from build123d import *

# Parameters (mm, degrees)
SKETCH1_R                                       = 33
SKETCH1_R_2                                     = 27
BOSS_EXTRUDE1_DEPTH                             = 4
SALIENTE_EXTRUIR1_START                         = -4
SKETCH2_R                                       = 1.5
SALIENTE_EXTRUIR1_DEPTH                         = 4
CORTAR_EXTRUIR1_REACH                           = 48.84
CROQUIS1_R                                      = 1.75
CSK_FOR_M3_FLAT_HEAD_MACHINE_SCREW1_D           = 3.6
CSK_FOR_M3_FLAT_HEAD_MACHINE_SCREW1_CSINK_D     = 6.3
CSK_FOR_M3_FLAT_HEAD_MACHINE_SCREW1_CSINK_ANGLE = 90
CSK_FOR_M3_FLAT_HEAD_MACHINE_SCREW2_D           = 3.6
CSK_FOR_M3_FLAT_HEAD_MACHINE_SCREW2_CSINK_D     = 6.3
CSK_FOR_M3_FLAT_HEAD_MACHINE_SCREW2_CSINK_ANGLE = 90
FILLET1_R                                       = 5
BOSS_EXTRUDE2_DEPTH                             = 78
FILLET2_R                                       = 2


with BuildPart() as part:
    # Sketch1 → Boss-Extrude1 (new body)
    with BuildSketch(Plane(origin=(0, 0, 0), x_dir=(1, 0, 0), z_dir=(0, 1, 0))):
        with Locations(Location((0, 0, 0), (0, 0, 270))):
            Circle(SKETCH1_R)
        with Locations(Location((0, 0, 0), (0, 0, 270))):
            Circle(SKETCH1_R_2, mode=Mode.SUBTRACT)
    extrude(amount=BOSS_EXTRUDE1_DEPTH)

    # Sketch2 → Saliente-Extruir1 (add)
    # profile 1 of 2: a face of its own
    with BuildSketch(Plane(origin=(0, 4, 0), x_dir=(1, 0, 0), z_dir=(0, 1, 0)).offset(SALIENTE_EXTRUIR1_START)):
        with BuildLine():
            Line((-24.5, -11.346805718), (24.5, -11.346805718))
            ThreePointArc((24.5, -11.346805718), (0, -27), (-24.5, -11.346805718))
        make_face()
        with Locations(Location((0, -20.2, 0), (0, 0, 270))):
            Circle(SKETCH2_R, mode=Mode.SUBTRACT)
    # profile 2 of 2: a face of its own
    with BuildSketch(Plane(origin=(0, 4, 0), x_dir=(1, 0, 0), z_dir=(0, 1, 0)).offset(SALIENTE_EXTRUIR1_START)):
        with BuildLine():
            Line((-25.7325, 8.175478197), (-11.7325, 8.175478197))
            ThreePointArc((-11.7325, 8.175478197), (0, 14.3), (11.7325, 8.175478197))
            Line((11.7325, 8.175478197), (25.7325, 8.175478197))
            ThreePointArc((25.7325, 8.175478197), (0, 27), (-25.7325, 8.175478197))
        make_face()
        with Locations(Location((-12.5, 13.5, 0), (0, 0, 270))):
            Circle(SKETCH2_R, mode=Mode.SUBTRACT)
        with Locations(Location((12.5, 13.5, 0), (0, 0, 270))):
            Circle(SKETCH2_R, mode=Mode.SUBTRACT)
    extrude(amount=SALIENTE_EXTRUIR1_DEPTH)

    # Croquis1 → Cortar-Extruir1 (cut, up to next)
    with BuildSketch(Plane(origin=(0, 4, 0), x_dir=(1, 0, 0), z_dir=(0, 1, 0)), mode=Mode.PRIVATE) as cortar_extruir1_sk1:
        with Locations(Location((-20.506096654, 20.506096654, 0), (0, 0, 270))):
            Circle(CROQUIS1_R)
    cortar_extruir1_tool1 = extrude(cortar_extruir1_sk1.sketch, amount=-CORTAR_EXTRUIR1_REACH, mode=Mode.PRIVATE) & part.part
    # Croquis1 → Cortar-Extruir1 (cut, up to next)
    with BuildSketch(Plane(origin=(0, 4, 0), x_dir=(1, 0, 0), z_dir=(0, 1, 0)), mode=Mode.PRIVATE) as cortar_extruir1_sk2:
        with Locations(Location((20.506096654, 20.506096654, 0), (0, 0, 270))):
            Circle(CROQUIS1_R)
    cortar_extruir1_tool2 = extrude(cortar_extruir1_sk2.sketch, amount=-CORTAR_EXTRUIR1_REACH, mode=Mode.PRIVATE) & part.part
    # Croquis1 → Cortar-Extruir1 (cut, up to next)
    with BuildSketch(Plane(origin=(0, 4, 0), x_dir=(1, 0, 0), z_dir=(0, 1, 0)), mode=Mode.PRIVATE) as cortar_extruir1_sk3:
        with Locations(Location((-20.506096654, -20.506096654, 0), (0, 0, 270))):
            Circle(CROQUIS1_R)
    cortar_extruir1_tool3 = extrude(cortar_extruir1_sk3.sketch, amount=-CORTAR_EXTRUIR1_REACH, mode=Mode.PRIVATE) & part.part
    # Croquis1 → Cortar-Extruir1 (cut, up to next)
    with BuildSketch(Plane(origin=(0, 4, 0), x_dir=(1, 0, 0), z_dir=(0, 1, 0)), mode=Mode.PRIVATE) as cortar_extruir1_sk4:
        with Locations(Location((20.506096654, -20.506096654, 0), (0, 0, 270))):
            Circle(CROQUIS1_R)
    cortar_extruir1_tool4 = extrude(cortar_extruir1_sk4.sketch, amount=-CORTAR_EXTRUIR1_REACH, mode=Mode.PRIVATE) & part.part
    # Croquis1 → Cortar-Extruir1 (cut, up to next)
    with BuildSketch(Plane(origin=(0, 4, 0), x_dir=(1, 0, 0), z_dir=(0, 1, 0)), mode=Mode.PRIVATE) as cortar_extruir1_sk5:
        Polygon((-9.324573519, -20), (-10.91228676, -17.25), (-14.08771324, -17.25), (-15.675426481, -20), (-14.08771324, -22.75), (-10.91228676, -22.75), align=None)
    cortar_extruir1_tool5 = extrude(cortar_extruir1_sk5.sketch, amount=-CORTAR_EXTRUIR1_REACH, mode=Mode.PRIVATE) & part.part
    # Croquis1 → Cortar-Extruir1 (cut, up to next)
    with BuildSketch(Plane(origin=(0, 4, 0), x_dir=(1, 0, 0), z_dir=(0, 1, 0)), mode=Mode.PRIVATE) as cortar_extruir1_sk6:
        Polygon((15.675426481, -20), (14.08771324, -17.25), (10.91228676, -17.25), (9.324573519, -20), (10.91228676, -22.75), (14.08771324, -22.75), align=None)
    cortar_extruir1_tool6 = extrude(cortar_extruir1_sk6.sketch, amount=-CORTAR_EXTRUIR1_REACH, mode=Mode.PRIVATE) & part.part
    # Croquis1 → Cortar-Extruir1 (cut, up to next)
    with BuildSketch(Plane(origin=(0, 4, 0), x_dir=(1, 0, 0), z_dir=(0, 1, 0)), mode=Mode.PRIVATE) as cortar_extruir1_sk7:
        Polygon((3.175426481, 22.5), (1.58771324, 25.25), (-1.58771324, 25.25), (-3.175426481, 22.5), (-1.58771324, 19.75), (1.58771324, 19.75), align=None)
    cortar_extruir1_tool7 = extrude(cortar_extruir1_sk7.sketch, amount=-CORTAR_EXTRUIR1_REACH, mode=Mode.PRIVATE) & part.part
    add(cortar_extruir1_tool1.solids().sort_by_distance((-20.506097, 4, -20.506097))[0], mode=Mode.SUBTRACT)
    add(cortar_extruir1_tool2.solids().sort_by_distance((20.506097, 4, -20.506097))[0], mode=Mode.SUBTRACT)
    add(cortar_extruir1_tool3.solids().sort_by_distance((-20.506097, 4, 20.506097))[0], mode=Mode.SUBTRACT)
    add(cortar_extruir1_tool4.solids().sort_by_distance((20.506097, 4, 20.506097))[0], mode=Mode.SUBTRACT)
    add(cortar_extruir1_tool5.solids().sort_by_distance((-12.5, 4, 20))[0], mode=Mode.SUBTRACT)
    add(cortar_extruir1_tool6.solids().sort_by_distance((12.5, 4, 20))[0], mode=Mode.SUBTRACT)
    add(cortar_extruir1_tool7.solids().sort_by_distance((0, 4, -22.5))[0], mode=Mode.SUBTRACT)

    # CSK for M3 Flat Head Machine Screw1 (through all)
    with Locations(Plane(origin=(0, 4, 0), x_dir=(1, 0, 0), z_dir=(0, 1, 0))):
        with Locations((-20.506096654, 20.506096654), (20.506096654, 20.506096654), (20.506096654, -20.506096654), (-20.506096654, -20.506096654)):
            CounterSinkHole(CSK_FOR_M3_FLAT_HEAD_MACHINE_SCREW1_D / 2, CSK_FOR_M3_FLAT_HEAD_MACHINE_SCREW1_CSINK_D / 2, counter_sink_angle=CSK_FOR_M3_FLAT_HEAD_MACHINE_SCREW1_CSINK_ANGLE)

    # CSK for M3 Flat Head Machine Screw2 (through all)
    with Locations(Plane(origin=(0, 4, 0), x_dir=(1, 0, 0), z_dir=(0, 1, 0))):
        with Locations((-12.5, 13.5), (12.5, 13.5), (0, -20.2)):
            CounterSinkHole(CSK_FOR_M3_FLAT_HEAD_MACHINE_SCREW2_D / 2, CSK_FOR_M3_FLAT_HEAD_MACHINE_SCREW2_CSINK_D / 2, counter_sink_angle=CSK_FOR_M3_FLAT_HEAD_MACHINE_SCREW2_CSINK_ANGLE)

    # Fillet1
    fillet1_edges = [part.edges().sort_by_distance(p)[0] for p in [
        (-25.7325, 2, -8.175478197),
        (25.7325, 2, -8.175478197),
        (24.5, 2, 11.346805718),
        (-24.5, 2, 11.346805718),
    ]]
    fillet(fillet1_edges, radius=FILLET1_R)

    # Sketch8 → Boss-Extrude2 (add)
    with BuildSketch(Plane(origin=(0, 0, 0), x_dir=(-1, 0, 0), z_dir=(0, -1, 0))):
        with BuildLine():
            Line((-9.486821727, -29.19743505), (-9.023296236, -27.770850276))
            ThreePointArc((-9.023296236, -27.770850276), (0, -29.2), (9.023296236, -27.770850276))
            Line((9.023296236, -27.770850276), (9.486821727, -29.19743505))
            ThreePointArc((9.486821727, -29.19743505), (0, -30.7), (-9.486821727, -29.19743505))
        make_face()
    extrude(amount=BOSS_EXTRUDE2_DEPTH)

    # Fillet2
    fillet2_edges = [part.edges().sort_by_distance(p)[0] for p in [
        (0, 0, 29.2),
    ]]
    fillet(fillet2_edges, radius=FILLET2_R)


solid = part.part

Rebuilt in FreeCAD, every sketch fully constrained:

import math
import FreeCAD as App
import Part
import Sketcher
from FreeCAD import Vector
Q = App.Units.Quantity


def edges_at(feature, points):
    """Names of the edges that pass closest to the given points."""
    edges = feature.Shape.Edges
    near = lambda p: min(range(len(edges)), key=lambda i: edges[i].distToShape(Part.Vertex(*p))[0])
    return sorted({f"Edge{near(p) + 1}" for p in points})


def add_polygon(sketch, points):
    """Adds a closed chain of lines whose ends are joined by coincident constraints."""
    first, n = sketch.GeometryCount, len(points)
    for a, b in zip(points, points[1:] + points[:1]):
        sketch.addGeometry(Part.LineSegment(App.Vector(*a, 0), App.Vector(*b, 0)), False)
    for i in range(n):
        sketch.addConstraint(Sketcher.Constraint("Coincident", first + i, 2, first + (i + 1) % n, 1))

doc = App.newDocument("Part")
body = doc.addObject("PartDesign::Body", "Body")

# Sketch on XZ plane
sketch1 = body.newObject("Sketcher::SketchObject", "Sketch")
sketch1.AttachmentSupport = (doc.getObject("XZ_Plane"), [""])
sketch1.MapMode = "FlatFace"
sketch1.addGeometry([
    Part.Circle(Vector(0, 0, 0), Vector(0, 0, 1), 33),
    Part.Circle(Vector(0, 0, 0), Vector(0, 0, 1), 27),
], False)
sketch1.addConstraint([
    Sketcher.Constraint("Coincident", 0, 3, -1, 1),
    Sketcher.Constraint("Coincident", 1, 3, -1, 1),
    Sketcher.Constraint("Diameter", 0, 66.0),
    Sketcher.Constraint("Diameter", 1, 54.0),
])
pad1 = body.newObject("PartDesign::Pad", "Pad")
pad1.Profile = sketch1
pad1.Length = 4
pad1.Reversed = True

# Sketch on XZ plane
sketch2 = body.newObject("Sketcher::SketchObject", "Sketch001")
sketch2.AttachmentSupport = (doc.getObject("XZ_Plane"), [""])
sketch2.MapMode = "FlatFace"
sketch2.addGeometry([
    Part.LineSegment(Vector(24.5, 11.346806, 0), Vector(-24.5, 11.346806, 0)),  # 0
    Part.ArcOfCircle(Part.Circle(Vector(0, 0, 0), Vector(0, 0, 1), 27), math.radians(24.850502), math.radians(155.149498)),  # 1
    Part.Circle(Vector(0, 20.2, 0), Vector(0, 0, 1), 1.5),  # 2
    Part.LineSegment(Vector(-25.7325, -8.175478, 0), Vector(-11.7325, -8.175478, 0)),  # 3
    Part.ArcOfCircle(Part.Circle(Vector(0, 0, 0), Vector(0, 0, 1), 14.3), math.radians(-145.130321), math.radians(-34.869679)),  # 4
    Part.LineSegment(Vector(11.7325, -8.175478, 0), Vector(25.7325, -8.175478, 0)),  # 5
    Part.ArcOfCircle(Part.Circle(Vector(0, 0, 0), Vector(0, 0, 1), 27), math.radians(-162.374416), math.radians(-17.625584)),  # 6
    Part.Circle(Vector(-12.5, -13.5, 0), Vector(0, 0, 1), 1.5),  # 7
    Part.Circle(Vector(12.5, -13.5, 0), Vector(0, 0, 1), 1.5),  # 8
], False)
sketch2.addConstraint([
    Sketcher.Constraint("Coincident", 0, 1, 1, 1),
    Sketcher.Constraint("Coincident", 1, 2, 0, 2),
    Sketcher.Constraint("Coincident", 3, 2, 4, 1),
    Sketcher.Constraint("Coincident", 4, 2, 5, 1),
    Sketcher.Constraint("Coincident", 5, 2, 6, 2),
    Sketcher.Constraint("Coincident", 6, 1, 3, 1),
    Sketcher.Constraint("Horizontal", 0),
    Sketcher.Constraint("Horizontal", 3),
    Sketcher.Constraint("Horizontal", 5),
    Sketcher.Constraint("Coincident", 1, 3, -1, 1),
    Sketcher.Constraint("Coincident", 4, 3, -1, 1),
    Sketcher.Constraint("Coincident", 6, 3, -1, 1),
    Sketcher.Constraint("Equal", 1, 6),
    Sketcher.Constraint("Equal", 2, 7),
    Sketcher.Constraint("Equal", 7, 8),
    Sketcher.Constraint("Symmetric", 7, 3, 8, 3, -2),
    Sketcher.Constraint("PointOnObject", 2, 3, -2),
    Sketcher.Constraint("Horizontal", 3, 2, 4, 2),
    Sketcher.Constraint("Diameter", 2, 3.0),
    Sketcher.Constraint("Radius", 1, 27.0),
    Sketcher.Constraint("Radius", 4, 14.3),
    Sketcher.Constraint("DistanceX", 0, 2, 0, 1, 49.0),
    Sketcher.Constraint("DistanceX", 3, 1, 3, 2, 14.0),
    Sketcher.Constraint("DistanceX", 7, 3, 8, 3, 25.0),
    Sketcher.Constraint("DistanceY", -1, 1, 2, 3, 20.2),
    Sketcher.Constraint("DistanceY", 7, 3, -1, 1, 13.5),
])
pad2 = body.newObject("PartDesign::Pad", "Pad001")
pad2.Profile = sketch2
pad2.Length = 4
pad2.Reversed = True

# Sketch on XZ plane
sketch3 = body.newObject("Sketcher::SketchObject", "Sketch002")
sketch3.AttachmentSupport = (doc.getObject("XZ_Plane"), [""])
sketch3.MapMode = "FlatFace"
sketch3.AttachmentOffset = App.Placement(Vector(0, 0, -4), App.Rotation())
sketch3.addGeometry(Part.Circle(Vector(-20.506097, -20.506097, 0), Vector(0, 0, 1), 1.75), False)
sketch3.addConstraint([
    Sketcher.Constraint("Diameter", 0, 3.5),
    Sketcher.Constraint("DistanceX", 0, 3, -1, 1, 20.506097),
    Sketcher.Constraint("DistanceY", 0, 3, -1, 1, 20.506097),
])
pocket1 = body.newObject("PartDesign::Pocket", "Pocket")
pocket1.Profile = sketch3
pocket1.Type = "UpToFirst"
pocket1.Reversed = True

# Sketch on XZ plane
sketch4 = body.newObject("Sketcher::SketchObject", "Sketch003")
sketch4.AttachmentSupport = (doc.getObject("XZ_Plane"), [""])
sketch4.MapMode = "FlatFace"
sketch4.AttachmentOffset = App.Placement(Vector(0, 0, -4), App.Rotation())
sketch4.addGeometry(Part.Circle(Vector(20.506097, -20.506097, 0), Vector(0, 0, 1), 1.75), False)
sketch4.addConstraint([
    Sketcher.Constraint("Diameter", 0, 3.5),
    Sketcher.Constraint("DistanceX", -1, 1, 0, 3, 20.506097),
    Sketcher.Constraint("DistanceY", 0, 3, -1, 1, 20.506097),
])
pocket2 = body.newObject("PartDesign::Pocket", "Pocket001")
pocket2.Profile = sketch4
pocket2.Type = "UpToFirst"
pocket2.Reversed = True

# Sketch on XZ plane
sketch5 = body.newObject("Sketcher::SketchObject", "Sketch004")
sketch5.AttachmentSupport = (doc.getObject("XZ_Plane"), [""])
sketch5.MapMode = "FlatFace"
sketch5.AttachmentOffset = App.Placement(Vector(0, 0, -4), App.Rotation())
sketch5.addGeometry(Part.Circle(Vector(-20.506097, 20.506097, 0), Vector(0, 0, 1), 1.75), False)
sketch5.addConstraint([
    Sketcher.Constraint("Diameter", 0, 3.5),
    Sketcher.Constraint("DistanceX", 0, 3, -1, 1, 20.506097),
    Sketcher.Constraint("DistanceY", -1, 1, 0, 3, 20.506097),
])
pocket3 = body.newObject("PartDesign::Pocket", "Pocket002")
pocket3.Profile = sketch5
pocket3.Type = "UpToFirst"
pocket3.Reversed = True

# Sketch on XZ plane
sketch6 = body.newObject("Sketcher::SketchObject", "Sketch005")
sketch6.AttachmentSupport = (doc.getObject("XZ_Plane"), [""])
sketch6.MapMode = "FlatFace"
sketch6.AttachmentOffset = App.Placement(Vector(0, 0, -4), App.Rotation())
sketch6.addGeometry(Part.Circle(Vector(20.506097, 20.506097, 0), Vector(0, 0, 1), 1.75), False)
sketch6.addConstraint([
    Sketcher.Constraint("Diameter", 0, 3.5),
    Sketcher.Constraint("DistanceX", -1, 1, 0, 3, 20.506097),
    Sketcher.Constraint("DistanceY", -1, 1, 0, 3, 20.506097),
])
pocket4 = body.newObject("PartDesign::Pocket", "Pocket003")
pocket4.Profile = sketch6
pocket4.Type = "UpToFirst"
pocket4.Reversed = True

# Sketch on XZ plane
sketch7 = body.newObject("Sketcher::SketchObject", "Sketch006")
sketch7.AttachmentSupport = (doc.getObject("XZ_Plane"), [""])
sketch7.MapMode = "FlatFace"
sketch7.AttachmentOffset = App.Placement(Vector(0, 0, -4), App.Rotation())
add_polygon(sketch7, [(-9.324574, 20), (-10.912287, 17.25), (-14.087713, 17.25), (-15.675426, 20), (-14.087713, 22.75), (-10.912287, 22.75)])  # lines 0-5
sketch7.addConstraint([
    Sketcher.Constraint("Horizontal", 1),
    Sketcher.Constraint("Horizontal", 4),
    Sketcher.Constraint("Parallel", 0, 3),
    Sketcher.Constraint("Parallel", 2, 5),
    Sketcher.Constraint("Horizontal", 2, 2, 5, 2),
    Sketcher.Constraint("Vertical", 1, 2, 3, 2),
    Sketcher.Constraint("Vertical", 0, 2, 4, 2),
    Sketcher.Constraint("Angle", 0, Q("-120 deg")),
    Sketcher.Constraint("DistanceY", -1, 1, 2, 2, 20.0),
    Sketcher.Constraint("DistanceY", 1, 2, 3, 2, 5.5),
    Sketcher.Constraint("DistanceX", 1, 2, 1, 1, 3.175426),
    Sketcher.Constraint("DistanceX", 0, 2, -1, 1, 10.912287),
])
pocket5 = body.newObject("PartDesign::Pocket", "Pocket004")
pocket5.Profile = sketch7
pocket5.Type = "UpToFirst"
pocket5.Reversed = True

# Sketch on XZ plane
sketch8 = body.newObject("Sketcher::SketchObject", "Sketch007")
sketch8.AttachmentSupport = (doc.getObject("XZ_Plane"), [""])
sketch8.MapMode = "FlatFace"
sketch8.AttachmentOffset = App.Placement(Vector(0, 0, -4), App.Rotation())
add_polygon(sketch8, [(15.675426, 20), (14.087713, 17.25), (10.912287, 17.25), (9.324574, 20), (10.912287, 22.75), (14.087713, 22.75)])  # lines 0-5
sketch8.addConstraint([
    Sketcher.Constraint("Horizontal", 1),
    Sketcher.Constraint("Horizontal", 4),
    Sketcher.Constraint("Parallel", 0, 3),
    Sketcher.Constraint("Parallel", 2, 5),
    Sketcher.Constraint("Horizontal", 2, 2, 5, 2),
    Sketcher.Constraint("Vertical", 1, 2, 3, 2),
    Sketcher.Constraint("Vertical", 0, 2, 4, 2),
    Sketcher.Constraint("Angle", 0, Q("-120 deg")),
    Sketcher.Constraint("DistanceY", -1, 1, 2, 2, 20.0),
    Sketcher.Constraint("DistanceY", 1, 2, 3, 2, 5.5),
    Sketcher.Constraint("DistanceX", 1, 2, 1, 1, 3.175426),
    Sketcher.Constraint("DistanceX", -1, 1, 0, 2, 14.087713),
])
pocket6 = body.newObject("PartDesign::Pocket", "Pocket005")
pocket6.Profile = sketch8
pocket6.Type = "UpToFirst"
pocket6.Reversed = True

# Sketch on XZ plane
sketch9 = body.newObject("Sketcher::SketchObject", "Sketch008")
sketch9.AttachmentSupport = (doc.getObject("XZ_Plane"), [""])
sketch9.MapMode = "FlatFace"
sketch9.AttachmentOffset = App.Placement(Vector(0, 0, -4), App.Rotation())
add_polygon(sketch9, [(3.175426, -22.5), (1.587713, -25.25), (-1.587713, -25.25), (-3.175426, -22.5), (-1.587713, -19.75), (1.587713, -19.75)])  # lines 0-5
sketch9.addConstraint([
    Sketcher.Constraint("Horizontal", 1),
    Sketcher.Constraint("Horizontal", 4),
    Sketcher.Constraint("Symmetric", 2, 2, 5, 2, -2),
    Sketcher.Constraint("Parallel", 0, 3),
    Sketcher.Constraint("Parallel", 2, 5),
    Sketcher.Constraint("Vertical", 1, 2, 3, 2),
    Sketcher.Constraint("Vertical", 0, 2, 4, 2),
    Sketcher.Constraint("Angle", 0, Q("-120 deg")),
    Sketcher.Constraint("DistanceY", 2, 2, -1, 1, 22.5),
    Sketcher.Constraint("DistanceY", 1, 2, 3, 2, 5.5),
    Sketcher.Constraint("DistanceX", 1, 2, 1, 1, 3.175426),
])
pocket7 = body.newObject("PartDesign::Pocket", "Pocket006")
pocket7.Profile = sketch9
pocket7.Type = "UpToFirst"
pocket7.Reversed = True

# Sketch on XZ plane
sketch10 = body.newObject("Sketcher::SketchObject", "Sketch009")
sketch10.AttachmentSupport = (doc.getObject("XZ_Plane"), [""])
sketch10.MapMode = "FlatFace"
sketch10.AttachmentOffset = App.Placement(Vector(0, 0, -4), App.Rotation())
sketch10.addGeometry([
    Part.Circle(Vector(-20.506097, -20.506097, 0), Vector(0, 0, 1), 1.8),
    Part.Circle(Vector(20.506097, -20.506097, 0), Vector(0, 0, 1), 1.8),
    Part.Circle(Vector(20.506097, 20.506097, 0), Vector(0, 0, 1), 1.8),
    Part.Circle(Vector(-20.506097, 20.506097, 0), Vector(0, 0, 1), 1.8),
], False)
sketch10.addConstraint([
    Sketcher.Constraint("Equal", 0, 1),
    Sketcher.Constraint("Equal", 1, 2),
    Sketcher.Constraint("Equal", 2, 3),
    Sketcher.Constraint("Symmetric", 0, 3, 2, 3, -1, 1),
    Sketcher.Constraint("Symmetric", 1, 3, 3, 3, -1, 1),
    Sketcher.Constraint("Symmetric", 0, 3, 1, 3, -2),
    Sketcher.Constraint("Diameter", 0, 3.6),
    Sketcher.Constraint("DistanceX", 0, 3, -1, 1, 20.506097),
    Sketcher.Constraint("DistanceY", 0, 3, -1, 1, 20.506097),
])
doc.recompute()
hole = body.newObject("PartDesign::Hole", "Hole")
hole.Profile = sketch10
hole.ThreadType = "None"
hole.Diameter = 3.6
hole.DepthType = "ThroughAll"
hole.HoleCutType = "Countersink"
hole.HoleCutDiameter = 6.3
hole.HoleCutCountersinkAngle = 90
hole.Reversed = True

# Sketch on XZ plane
sketch11 = body.newObject("Sketcher::SketchObject", "Sketch010")
sketch11.AttachmentSupport = (doc.getObject("XZ_Plane"), [""])
sketch11.MapMode = "FlatFace"
sketch11.AttachmentOffset = App.Placement(Vector(0, 0, -4), App.Rotation())
sketch11.addGeometry([
    Part.Circle(Vector(-12.5, -13.5, 0), Vector(0, 0, 1), 1.8),
    Part.Circle(Vector(12.5, -13.5, 0), Vector(0, 0, 1), 1.8),
    Part.Circle(Vector(0, 20.2, 0), Vector(0, 0, 1), 1.8),
], False)
sketch11.addConstraint([
    Sketcher.Constraint("Equal", 0, 1),
    Sketcher.Constraint("Equal", 1, 2),
    Sketcher.Constraint("Symmetric", 0, 3, 1, 3, -2),
    Sketcher.Constraint("PointOnObject", 2, 3, -2),
    Sketcher.Constraint("Diameter", 0, 3.6),
    Sketcher.Constraint("DistanceX", 0, 3, 1, 3, 25.0),
    Sketcher.Constraint("DistanceY", 0, 3, -1, 1, 13.5),
    Sketcher.Constraint("DistanceY", -1, 1, 2, 3, 20.2),
])
doc.recompute()
hole2 = body.newObject("PartDesign::Hole", "Hole001")
hole2.Profile = sketch11
hole2.ThreadType = "None"
hole2.Diameter = 3.6
hole2.DepthType = "ThroughAll"
hole2.HoleCutType = "Countersink"
hole2.HoleCutDiameter = 6.3
hole2.HoleCutCountersinkAngle = 90
hole2.Reversed = True
doc.recompute()

fillet = body.newObject("PartDesign::Fillet", "Fillet")
fillet.Base = (hole2, edges_at(hole2, [
    (-25.733, 2, -8.175),
    (25.733, 2, -8.175),
    (24.5, 2, 11.347),
    (-24.5, 2, 11.347),
]))
fillet.Radius = 5

# Sketch on XZ plane
sketch12 = body.newObject("Sketcher::SketchObject", "Sketch011")
sketch12.AttachmentSupport = (doc.getObject("XZ_Plane"), [""])
sketch12.MapMode = "FlatFace"
sketch12.addGeometry([
    Part.LineSegment(Vector(9.023296, 27.77085, 0), Vector(9.486822, 29.197435, 0)),
    Part.ArcOfCircle(Part.Circle(Vector(0, 0, 0), Vector(0, 0, 1), 30.7), math.radians(72), math.radians(108)),
    Part.LineSegment(Vector(-9.486822, 29.197435, 0), Vector(-9.023296, 27.77085, 0)),
    Part.ArcOfCircle(Part.Circle(Vector(0, 0, 0), Vector(0, 0, 1), 29.2), math.radians(72), math.radians(108)),
], False)
sketch12.addConstraint([
    Sketcher.Constraint("Coincident", 0, 2, 1, 1),
    Sketcher.Constraint("Coincident", 1, 2, 2, 1),
    Sketcher.Constraint("Coincident", 2, 2, 3, 2),
    Sketcher.Constraint("Coincident", 3, 1, 0, 1),
    Sketcher.Constraint("Coincident", 1, 3, -1, 1),
    Sketcher.Constraint("Coincident", 3, 3, -1, 1),
    Sketcher.Constraint("Horizontal", 0, 2, 1, 2),
    Sketcher.Constraint("Horizontal", 2, 2, 3, 1),
    Sketcher.Constraint("Radius", 1, 30.7),
    Sketcher.Constraint("Radius", 3, 29.2),
    Sketcher.Constraint("Angle", 0, Q("72 deg")),
    Sketcher.Constraint("DistanceX", -1, 1, 0, 2, 9.486822),
])
pad3 = body.newObject("PartDesign::Pad", "Pad002")
pad3.Profile = sketch12
pad3.Length = 78
doc.recompute()

fillet2 = body.newObject("PartDesign::Fillet", "Fillet001")
fillet2.Base = (pad3, edges_at(pad3, [(0, 0, 29.2)]))
fillet2.Radius = 2

doc.recompute()
